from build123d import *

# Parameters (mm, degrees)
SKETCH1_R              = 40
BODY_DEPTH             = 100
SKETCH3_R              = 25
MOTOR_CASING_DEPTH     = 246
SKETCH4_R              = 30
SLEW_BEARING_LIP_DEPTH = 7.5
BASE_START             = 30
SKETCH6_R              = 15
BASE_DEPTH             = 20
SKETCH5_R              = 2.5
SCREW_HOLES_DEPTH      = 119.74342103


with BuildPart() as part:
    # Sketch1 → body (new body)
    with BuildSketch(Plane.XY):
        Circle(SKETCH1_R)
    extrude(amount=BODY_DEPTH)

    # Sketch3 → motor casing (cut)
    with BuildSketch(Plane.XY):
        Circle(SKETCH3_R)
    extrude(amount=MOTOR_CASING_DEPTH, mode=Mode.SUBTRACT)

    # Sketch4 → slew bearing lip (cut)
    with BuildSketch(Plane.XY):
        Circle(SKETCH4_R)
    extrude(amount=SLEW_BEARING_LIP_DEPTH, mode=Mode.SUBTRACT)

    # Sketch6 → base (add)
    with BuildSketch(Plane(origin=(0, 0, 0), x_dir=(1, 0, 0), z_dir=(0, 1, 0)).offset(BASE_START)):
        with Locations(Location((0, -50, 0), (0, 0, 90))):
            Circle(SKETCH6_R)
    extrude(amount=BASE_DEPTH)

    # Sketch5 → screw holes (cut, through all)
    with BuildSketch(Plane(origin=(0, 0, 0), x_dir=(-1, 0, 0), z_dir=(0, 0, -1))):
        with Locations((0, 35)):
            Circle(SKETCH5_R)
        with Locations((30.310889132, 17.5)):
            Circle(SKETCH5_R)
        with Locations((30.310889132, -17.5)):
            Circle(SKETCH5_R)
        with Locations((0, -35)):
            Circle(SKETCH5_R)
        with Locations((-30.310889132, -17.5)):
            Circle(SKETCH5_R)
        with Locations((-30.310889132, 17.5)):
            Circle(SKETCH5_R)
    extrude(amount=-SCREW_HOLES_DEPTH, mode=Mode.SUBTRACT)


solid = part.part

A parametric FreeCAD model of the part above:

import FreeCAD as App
import Part
import Sketcher
from FreeCAD import Vector
Q = App.Units.Quantity

doc = App.newDocument("Part")
body = doc.addObject("PartDesign::Body", "Body")

sketch1 = body.newObject("Sketcher::SketchObject", "Sketch")
sketch1.AttachmentSupport = (doc.getObject("XY_Plane"), [""])
sketch1.MapMode = "FlatFace"
sketch1.addGeometry(Part.Circle(Vector(0, 0, 0), Vector(0, 0, 1), 40), False)
sketch1.addConstraint(Sketcher.Constraint("Coincident", 0, 3, -1, 1))
sketch1.addConstraint(Sketcher.Constraint("Diameter", 0, Q("80 mm")))
pad1 = body.newObject("PartDesign::Pad", "Pad")
pad1.Profile = sketch1
pad1.Length = 100

sketch2 = body.newObject("Sketcher::SketchObject", "Sketch001")
sketch2.AttachmentSupport = (doc.getObject("XY_Plane"), [""])
sketch2.MapMode = "FlatFace"
sketch2.addGeometry(Part.Circle(Vector(0, 0, 0), Vector(0, 0, 1), 25), False)
sketch2.addConstraint(Sketcher.Constraint("Coincident", 0, 3, -1, 1))
sketch2.addConstraint(Sketcher.Constraint("Diameter", 0, Q("50 mm")))
pocket1 = body.newObject("PartDesign::Pocket", "Pocket")
pocket1.Profile = sketch2
pocket1.Length = 246
pocket1.Reversed = True

sketch3 = body.newObject("Sketcher::SketchObject", "Sketch002")
sketch3.AttachmentSupport = (doc.getObject("XY_Plane"), [""])
sketch3.MapMode = "FlatFace"
sketch3.addGeometry(Part.Circle(Vector(0, 0, 0), Vector(0, 0, 1), 30), False)
sketch3.addConstraint(Sketcher.Constraint("Coincident", 0, 3, -1, 1))
sketch3.addConstraint(Sketcher.Constraint("Diameter", 0, Q("60 mm")))
pocket2 = body.newObject("PartDesign::Pocket", "Pocket001")
pocket2.Profile = sketch3
pocket2.Length = 7.5
pocket2.Reversed = True

sketch4 = body.newObject("Sketcher::SketchObject", "Sketch003")
sketch4.AttachmentSupport = (doc.getObject("XZ_Plane"), [""])
sketch4.MapMode = "FlatFace"
sketch4.AttachmentOffset = App.Placement(Vector(0, 0, -30), App.Rotation())
sketch4.addGeometry(Part.Circle(Vector(0, 50, 0), Vector(0, 0, 1), 15), False)
sketch4.addConstraint(Sketcher.Constraint("PointOnObject", 0, 3, -2))
sketch4.addConstraint(Sketcher.Constraint("Diameter", 0, Q("30 mm")))
sketch4.addConstraint(Sketcher.Constraint("DistanceY", -1, 1, 0, 3, Q("50 mm")))
pad2 = body.newObject("PartDesign::Pad", "Pad001")
pad2.Profile = sketch4
pad2.Length = 20
pad2.Reversed = True

sketch5 = body.newObject("Sketcher::SketchObject", "Sketch004")
sketch5.AttachmentSupport = (doc.getObject("XY_Plane"), [""])
sketch5.MapMode = "FlatFace"
sketch5.addGeometry(Part.Circle(Vector(0, 35, 0), Vector(0, 0, 1), 2.5), False)
sketch5.addGeometry(Part.Circle(Vector(-30.3, 17.5, 0), Vector(0, 0, 1), 2.5), False)
sketch5.addGeometry(Part.Circle(Vector(-30.3, -17.5, 0), Vector(0, 0, 1), 2.5), False)
sketch5.addGeometry(Part.Circle(Vector(0, -35, 0), Vector(0, 0, 1), 2.5), False)
sketch5.addGeometry(Part.Circle(Vector(30.3, -17.5, 0), Vector(0, 0, 1), 2.5), False)
sketch5.addGeometry(Part.Circle(Vector(30.3, 17.5, 0), Vector(0, 0, 1), 2.5), False)
sketch5.addConstraint(Sketcher.Constraint("Equal", 0, 1))
sketch5.addConstraint(Sketcher.Constraint("Equal", 1, 2))
sketch5.addConstraint(Sketcher.Constraint("Equal", 2, 3))
sketch5.addConstraint(Sketcher.Constraint("Equal", 3, 4))
sketch5.addConstraint(Sketcher.Constraint("Equal", 4, 5))
sketch5.addConstraint(Sketcher.Constraint("Symmetric", 0, 3, 3, 3, -1, 1))
sketch5.addConstraint(Sketcher.Constraint("Symmetric", 1, 3, 4, 3, -1, 1))
sketch5.addConstraint(Sketcher.Constraint("Symmetric", 2, 3, 5, 3, -1, 1))
sketch5.addConstraint(Sketcher.Constraint("Symmetric", 2, 3, 4, 3, -2))
sketch5.addConstraint(Sketcher.Constraint("PointOnObject", 0, 3, -2))
sketch5.addConstraint(Sketcher.Constraint("Diameter", 0, Q("5 mm")))
sketch5.addConstraint(Sketcher.Constraint("DistanceY", -1, 1, 0, 3, Q("35 mm")))
sketch5.addConstraint(Sketcher.Constraint("DistanceY", 2, 3, 1, 3, Q("35 mm")))
sketch5.addConstraint(Sketcher.Constraint("DistanceX", 1, 3, -1, 1, Q("30.310889 mm")))
pocket3 = body.newObject("PartDesign::Pocket", "Pocket002")
pocket3.Profile = sketch5
pocket3.Type = "ThroughAll"
pocket3.Reversed = True

doc.recompute()
